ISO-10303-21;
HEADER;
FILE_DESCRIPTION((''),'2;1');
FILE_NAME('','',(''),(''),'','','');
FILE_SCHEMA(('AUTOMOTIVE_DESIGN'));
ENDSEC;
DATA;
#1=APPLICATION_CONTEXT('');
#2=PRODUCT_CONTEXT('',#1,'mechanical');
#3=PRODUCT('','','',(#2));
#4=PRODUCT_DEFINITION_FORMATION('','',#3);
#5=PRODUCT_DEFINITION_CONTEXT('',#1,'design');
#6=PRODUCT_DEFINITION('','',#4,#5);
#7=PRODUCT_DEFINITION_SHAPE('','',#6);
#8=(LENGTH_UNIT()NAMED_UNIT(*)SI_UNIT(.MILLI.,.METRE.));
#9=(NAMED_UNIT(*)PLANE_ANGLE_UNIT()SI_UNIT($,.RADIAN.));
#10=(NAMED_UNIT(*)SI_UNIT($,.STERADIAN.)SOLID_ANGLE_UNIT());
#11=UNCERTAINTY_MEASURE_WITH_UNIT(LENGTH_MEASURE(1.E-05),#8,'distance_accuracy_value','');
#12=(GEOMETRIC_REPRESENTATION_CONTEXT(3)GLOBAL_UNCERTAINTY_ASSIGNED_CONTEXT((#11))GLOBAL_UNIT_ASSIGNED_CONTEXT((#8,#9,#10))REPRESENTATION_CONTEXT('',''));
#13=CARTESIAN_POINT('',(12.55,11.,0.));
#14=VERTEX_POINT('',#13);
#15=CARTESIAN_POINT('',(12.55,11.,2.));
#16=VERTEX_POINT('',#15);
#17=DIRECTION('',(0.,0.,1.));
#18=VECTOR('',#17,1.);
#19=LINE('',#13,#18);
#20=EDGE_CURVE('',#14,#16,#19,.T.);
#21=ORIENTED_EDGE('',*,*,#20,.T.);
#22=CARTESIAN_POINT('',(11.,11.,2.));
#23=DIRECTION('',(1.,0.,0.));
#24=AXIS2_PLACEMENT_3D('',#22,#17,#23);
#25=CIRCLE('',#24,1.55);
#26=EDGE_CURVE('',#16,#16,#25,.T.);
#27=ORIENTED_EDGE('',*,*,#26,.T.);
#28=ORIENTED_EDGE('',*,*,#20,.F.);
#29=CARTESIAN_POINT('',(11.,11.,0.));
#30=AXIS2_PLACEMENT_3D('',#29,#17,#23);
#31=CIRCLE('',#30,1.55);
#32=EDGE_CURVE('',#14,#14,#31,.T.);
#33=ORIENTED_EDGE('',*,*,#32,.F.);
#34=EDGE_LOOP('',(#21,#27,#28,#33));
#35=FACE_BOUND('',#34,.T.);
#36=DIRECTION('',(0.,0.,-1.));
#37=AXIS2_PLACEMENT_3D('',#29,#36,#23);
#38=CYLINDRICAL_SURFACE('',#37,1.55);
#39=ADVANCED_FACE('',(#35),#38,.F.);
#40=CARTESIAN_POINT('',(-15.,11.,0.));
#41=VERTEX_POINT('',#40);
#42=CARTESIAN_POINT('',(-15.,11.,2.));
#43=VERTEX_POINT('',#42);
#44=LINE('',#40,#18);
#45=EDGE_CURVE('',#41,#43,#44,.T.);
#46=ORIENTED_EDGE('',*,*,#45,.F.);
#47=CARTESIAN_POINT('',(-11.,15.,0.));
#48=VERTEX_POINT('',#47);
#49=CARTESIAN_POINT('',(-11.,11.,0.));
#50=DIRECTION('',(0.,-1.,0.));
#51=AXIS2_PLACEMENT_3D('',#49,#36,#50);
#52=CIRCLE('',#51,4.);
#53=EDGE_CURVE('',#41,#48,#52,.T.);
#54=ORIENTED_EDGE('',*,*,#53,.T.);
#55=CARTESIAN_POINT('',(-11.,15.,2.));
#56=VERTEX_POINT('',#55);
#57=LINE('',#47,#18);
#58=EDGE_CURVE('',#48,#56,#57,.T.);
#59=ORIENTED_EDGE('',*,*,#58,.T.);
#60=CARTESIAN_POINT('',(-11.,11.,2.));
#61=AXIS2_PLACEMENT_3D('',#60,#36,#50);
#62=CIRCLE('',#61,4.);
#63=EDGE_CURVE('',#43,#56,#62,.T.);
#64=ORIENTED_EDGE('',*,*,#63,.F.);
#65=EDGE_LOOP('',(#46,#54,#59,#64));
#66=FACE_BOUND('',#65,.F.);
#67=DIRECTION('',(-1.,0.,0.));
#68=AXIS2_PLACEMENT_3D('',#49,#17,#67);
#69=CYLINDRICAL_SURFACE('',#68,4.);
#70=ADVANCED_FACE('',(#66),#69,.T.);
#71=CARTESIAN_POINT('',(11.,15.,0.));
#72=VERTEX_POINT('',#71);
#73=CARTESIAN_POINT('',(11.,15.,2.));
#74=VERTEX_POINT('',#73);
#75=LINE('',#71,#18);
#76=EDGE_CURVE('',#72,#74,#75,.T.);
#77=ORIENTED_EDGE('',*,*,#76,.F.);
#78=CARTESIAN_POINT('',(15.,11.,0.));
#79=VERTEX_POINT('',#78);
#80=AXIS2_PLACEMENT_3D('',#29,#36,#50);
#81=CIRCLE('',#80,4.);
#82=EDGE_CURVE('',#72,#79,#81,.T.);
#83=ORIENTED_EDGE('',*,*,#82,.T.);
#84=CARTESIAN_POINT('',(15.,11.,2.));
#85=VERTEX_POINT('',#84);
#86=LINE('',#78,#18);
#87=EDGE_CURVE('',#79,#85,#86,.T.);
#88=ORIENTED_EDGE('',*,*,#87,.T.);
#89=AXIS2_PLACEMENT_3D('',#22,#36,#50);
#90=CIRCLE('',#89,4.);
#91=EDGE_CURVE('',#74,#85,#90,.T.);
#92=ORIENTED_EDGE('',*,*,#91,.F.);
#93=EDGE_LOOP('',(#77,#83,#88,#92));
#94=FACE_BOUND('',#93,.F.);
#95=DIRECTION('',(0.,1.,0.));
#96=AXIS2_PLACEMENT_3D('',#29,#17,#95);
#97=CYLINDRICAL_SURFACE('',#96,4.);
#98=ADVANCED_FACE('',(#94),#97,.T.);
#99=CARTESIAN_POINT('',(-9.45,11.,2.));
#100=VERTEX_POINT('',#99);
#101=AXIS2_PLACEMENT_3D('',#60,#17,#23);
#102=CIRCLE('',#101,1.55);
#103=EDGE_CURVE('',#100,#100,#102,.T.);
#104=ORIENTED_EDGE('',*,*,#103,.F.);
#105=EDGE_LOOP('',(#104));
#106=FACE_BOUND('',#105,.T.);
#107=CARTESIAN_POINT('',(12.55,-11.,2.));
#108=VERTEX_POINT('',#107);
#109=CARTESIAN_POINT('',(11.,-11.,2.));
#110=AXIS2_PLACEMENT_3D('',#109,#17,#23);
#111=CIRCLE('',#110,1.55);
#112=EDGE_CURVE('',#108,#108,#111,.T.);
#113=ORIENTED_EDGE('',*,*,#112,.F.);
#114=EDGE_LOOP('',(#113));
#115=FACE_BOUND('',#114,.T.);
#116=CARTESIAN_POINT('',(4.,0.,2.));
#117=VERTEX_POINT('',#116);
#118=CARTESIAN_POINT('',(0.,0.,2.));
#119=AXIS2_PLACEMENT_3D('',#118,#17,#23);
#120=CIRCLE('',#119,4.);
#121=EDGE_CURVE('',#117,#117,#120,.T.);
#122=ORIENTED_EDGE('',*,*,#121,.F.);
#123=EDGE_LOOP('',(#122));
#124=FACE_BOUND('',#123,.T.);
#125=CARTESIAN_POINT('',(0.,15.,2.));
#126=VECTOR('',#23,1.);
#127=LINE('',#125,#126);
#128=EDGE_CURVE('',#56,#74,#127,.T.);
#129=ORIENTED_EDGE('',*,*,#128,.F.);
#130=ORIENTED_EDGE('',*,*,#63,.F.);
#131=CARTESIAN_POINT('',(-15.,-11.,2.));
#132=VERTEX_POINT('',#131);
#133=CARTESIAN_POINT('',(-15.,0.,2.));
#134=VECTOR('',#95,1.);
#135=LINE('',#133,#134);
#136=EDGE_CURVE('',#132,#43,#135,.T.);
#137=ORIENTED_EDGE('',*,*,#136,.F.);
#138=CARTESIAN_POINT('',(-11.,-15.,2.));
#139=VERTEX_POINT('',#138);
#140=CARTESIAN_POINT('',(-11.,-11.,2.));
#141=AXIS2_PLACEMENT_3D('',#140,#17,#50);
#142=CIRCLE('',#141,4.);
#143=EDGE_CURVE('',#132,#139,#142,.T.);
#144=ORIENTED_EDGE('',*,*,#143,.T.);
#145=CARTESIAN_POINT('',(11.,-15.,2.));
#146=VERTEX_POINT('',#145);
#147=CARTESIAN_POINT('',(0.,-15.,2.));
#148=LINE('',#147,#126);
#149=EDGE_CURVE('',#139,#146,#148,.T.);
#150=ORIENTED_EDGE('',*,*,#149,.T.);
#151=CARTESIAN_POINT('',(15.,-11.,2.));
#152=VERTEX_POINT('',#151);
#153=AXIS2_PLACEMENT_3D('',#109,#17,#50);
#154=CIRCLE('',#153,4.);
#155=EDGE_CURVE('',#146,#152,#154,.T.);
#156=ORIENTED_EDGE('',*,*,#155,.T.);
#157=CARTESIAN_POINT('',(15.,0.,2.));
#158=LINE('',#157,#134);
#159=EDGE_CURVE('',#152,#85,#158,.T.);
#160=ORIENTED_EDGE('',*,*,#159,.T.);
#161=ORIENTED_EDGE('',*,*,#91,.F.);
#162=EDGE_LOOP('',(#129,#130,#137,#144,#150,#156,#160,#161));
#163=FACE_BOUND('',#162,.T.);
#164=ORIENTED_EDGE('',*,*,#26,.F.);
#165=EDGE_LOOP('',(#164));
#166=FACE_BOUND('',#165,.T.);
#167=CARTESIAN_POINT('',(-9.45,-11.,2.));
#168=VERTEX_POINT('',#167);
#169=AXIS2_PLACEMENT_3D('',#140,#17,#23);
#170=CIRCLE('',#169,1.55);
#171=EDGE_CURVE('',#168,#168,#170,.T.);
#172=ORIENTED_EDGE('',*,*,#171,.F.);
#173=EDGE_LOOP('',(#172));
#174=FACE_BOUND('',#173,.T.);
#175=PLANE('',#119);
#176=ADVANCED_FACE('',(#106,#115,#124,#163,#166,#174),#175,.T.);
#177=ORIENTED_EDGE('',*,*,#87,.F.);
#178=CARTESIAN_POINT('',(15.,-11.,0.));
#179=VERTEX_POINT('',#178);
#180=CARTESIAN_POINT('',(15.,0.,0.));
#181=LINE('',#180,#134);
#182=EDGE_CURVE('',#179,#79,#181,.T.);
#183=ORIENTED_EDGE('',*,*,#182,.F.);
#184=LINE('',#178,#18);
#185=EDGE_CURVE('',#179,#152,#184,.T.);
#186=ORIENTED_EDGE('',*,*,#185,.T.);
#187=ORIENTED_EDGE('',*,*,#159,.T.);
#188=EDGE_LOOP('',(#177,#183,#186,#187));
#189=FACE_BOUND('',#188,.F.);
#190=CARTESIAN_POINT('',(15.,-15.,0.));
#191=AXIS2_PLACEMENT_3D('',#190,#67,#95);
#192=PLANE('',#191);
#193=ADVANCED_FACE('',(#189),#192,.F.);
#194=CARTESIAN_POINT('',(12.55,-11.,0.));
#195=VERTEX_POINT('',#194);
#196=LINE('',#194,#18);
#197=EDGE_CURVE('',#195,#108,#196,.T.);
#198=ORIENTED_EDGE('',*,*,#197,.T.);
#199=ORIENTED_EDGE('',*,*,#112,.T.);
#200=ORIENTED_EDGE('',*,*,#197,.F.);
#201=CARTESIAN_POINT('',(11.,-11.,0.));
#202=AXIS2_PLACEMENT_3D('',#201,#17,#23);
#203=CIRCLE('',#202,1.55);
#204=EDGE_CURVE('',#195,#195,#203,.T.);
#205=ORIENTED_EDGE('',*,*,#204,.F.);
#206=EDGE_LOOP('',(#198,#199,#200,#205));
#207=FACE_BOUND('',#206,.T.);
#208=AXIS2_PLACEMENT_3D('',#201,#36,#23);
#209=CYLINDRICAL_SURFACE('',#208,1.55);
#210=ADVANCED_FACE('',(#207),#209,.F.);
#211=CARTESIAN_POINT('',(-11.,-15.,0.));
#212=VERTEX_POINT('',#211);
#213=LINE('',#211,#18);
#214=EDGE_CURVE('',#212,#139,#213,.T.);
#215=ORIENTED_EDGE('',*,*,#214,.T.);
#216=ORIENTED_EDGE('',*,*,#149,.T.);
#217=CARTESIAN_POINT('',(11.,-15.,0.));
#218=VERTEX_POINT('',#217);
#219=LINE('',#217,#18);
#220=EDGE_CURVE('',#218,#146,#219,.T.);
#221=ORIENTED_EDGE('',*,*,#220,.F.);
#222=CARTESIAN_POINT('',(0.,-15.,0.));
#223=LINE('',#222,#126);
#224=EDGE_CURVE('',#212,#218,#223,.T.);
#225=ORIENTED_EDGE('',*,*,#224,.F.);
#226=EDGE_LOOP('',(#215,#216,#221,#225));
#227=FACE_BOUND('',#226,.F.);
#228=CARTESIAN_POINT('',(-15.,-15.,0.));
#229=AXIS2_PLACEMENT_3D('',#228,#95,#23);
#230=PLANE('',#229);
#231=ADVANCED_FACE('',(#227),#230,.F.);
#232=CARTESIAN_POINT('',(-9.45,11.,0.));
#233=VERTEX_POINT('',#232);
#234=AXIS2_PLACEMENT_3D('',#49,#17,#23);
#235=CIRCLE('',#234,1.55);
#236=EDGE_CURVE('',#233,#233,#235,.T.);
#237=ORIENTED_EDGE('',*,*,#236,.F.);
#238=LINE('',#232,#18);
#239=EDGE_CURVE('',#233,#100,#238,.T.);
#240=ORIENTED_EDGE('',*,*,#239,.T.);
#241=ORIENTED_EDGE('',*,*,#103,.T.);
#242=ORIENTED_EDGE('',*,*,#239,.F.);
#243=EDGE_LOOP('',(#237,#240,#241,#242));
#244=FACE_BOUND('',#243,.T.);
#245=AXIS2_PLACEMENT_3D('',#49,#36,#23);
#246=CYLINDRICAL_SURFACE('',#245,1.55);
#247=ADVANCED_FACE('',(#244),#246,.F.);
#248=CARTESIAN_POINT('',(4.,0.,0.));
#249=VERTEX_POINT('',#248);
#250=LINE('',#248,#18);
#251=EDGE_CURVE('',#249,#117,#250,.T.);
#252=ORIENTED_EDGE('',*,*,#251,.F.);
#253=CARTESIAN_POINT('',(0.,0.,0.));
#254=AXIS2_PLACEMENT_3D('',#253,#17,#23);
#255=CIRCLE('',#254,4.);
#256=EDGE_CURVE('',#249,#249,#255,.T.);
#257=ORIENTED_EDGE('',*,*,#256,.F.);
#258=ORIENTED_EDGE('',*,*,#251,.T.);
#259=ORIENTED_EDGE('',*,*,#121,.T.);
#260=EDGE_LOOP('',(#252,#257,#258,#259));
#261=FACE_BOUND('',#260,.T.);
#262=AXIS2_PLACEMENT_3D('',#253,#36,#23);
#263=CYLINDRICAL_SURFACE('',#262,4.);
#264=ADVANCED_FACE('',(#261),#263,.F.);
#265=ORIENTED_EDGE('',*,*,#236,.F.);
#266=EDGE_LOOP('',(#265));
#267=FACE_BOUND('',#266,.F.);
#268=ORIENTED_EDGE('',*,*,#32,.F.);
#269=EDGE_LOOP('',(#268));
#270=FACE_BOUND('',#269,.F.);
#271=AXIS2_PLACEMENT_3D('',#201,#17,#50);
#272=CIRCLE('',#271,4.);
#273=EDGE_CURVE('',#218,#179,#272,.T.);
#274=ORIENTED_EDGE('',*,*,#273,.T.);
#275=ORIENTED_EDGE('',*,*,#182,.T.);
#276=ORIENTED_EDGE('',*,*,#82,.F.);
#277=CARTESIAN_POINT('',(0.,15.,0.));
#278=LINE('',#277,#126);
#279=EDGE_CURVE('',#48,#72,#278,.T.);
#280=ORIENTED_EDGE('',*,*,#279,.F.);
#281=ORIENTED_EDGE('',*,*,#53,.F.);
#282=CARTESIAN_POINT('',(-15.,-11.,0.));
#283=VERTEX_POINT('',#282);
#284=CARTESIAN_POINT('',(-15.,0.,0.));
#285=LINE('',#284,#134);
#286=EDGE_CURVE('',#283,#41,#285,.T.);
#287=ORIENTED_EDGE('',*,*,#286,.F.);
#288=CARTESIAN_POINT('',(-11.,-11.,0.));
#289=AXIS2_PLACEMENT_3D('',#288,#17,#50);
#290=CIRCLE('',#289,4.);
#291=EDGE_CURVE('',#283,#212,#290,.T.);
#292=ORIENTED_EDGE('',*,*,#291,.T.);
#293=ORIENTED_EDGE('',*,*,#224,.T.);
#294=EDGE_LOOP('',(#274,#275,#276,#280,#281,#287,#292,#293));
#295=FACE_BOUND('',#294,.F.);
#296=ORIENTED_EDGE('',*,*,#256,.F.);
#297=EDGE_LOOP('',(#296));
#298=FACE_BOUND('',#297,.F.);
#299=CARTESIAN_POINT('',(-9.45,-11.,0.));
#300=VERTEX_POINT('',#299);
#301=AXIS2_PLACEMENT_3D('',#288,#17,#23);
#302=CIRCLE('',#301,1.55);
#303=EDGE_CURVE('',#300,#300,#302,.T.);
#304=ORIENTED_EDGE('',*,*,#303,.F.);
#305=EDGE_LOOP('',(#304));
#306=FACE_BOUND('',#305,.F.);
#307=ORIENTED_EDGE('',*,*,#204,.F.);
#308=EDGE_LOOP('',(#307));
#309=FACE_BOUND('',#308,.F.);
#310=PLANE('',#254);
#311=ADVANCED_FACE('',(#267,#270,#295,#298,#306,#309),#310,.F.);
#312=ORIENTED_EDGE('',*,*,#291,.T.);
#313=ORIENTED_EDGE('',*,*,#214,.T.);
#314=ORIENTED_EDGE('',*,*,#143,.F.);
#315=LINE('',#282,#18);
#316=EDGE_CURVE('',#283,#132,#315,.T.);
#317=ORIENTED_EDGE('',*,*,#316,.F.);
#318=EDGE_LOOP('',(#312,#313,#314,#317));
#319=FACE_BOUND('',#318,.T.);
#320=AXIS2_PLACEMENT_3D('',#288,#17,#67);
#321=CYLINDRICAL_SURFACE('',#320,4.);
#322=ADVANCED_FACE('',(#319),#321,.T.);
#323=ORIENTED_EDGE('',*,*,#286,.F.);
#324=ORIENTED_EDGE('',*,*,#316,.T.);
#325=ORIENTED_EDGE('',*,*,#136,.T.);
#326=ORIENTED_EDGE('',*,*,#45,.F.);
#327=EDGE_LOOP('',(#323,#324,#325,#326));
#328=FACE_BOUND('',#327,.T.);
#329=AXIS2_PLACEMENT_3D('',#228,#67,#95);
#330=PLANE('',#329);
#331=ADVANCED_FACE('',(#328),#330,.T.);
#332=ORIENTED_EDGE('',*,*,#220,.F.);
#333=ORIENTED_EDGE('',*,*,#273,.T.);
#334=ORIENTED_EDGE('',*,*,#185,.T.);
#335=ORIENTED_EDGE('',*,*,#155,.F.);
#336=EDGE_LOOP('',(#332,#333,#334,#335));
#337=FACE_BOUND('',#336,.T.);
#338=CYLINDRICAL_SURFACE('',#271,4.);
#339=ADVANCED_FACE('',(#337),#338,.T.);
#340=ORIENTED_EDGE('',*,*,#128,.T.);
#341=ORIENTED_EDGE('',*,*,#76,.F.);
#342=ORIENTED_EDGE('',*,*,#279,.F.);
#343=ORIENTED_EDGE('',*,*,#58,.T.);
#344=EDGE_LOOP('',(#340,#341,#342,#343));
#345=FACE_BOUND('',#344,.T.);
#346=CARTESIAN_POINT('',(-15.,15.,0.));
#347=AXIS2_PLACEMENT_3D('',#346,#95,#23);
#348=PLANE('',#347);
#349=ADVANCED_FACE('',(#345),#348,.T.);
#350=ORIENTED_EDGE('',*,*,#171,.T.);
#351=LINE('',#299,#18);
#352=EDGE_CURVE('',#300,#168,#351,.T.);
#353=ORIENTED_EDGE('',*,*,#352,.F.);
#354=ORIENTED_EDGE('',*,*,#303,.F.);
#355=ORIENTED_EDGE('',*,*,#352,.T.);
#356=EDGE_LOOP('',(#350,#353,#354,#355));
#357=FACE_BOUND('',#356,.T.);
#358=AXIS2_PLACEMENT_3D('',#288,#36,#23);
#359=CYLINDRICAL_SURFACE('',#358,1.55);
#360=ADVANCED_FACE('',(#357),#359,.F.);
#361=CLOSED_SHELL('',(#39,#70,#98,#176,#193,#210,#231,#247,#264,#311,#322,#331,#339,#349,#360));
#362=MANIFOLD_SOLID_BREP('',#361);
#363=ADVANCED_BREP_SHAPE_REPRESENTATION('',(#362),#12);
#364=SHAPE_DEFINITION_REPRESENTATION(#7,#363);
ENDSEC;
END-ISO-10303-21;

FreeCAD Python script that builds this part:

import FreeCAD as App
import Part
import Sketcher
Q = App.Units.Quantity


def edges_at(feature, points):
    """Names of the edges that pass closest to the given points."""
    edges = feature.Shape.Edges
    near = lambda p: min(range(len(edges)), key=lambda i: edges[i].distToShape(Part.Vertex(*p))[0])
    return sorted({f"Edge{near(p) + 1}" for p in points})

doc = App.newDocument("Part")
params = doc.addObject("Spreadsheet::Sheet", "Params")
for row, (alias, value) in enumerate([
    ("sketch1_diameter", "8 mm"),
    ("sketch1_diameter2", "3.1 mm"),
    ("sketch1_width", "30 mm"),
    ("pad1_length", "2 mm"),
    ("fillet_radius", "4 mm"),
], start=1):
    params.set(f"A{row}", alias)
    params.set(f"B{row}", "=" + value)
    params.setAlias(f"B{row}", alias)

body = doc.addObject("PartDesign::Body", "Body")

# Sketch on XY plane
sketch1 = doc.addObject("Sketcher::SketchObject", "Sketch")
body.addObject(sketch1)
sketch1.AttachmentSupport = (doc.XY_Plane, [""])
sketch1.MapMode = "FlatFace"
sketch1.addGeometry([
    Part.LineSegment(App.Vector(-15, 15, 0), App.Vector(-15, -15, 0)),  # 0
    Part.LineSegment(App.Vector(-15, -15, 0), App.Vector(15, -15, 0)),  # 1
    Part.LineSegment(App.Vector(15, -15, 0), App.Vector(15, 15, 0)),  # 2
    Part.LineSegment(App.Vector(15, 15, 0), App.Vector(-15, 15, 0)),  # 3
    Part.Circle(App.Vector(-11, -11, 0), App.Vector(0, 0, 1), 1.6),  # 4
    Part.Circle(App.Vector(11, -11, 0), App.Vector(0, 0, 1), 1.6),  # 5
    Part.Circle(App.Vector(-11, 11, 0), App.Vector(0, 0, 1), 1.6),  # 6
    Part.Circle(App.Vector(0, 0, 0), App.Vector(0, 0, 1), 4),  # 7
    Part.Circle(App.Vector(11, 11, 0), App.Vector(0, 0, 1), 1.6),  # 8
], False)
sketch1.addConstraint([
    Sketcher.Constraint("Coincident", 0, 2, 1, 1),
    Sketcher.Constraint("Coincident", 1, 2, 2, 1),
    Sketcher.Constraint("Coincident", 2, 2, 3, 1),
    Sketcher.Constraint("Coincident", 3, 2, 0, 1),
    Sketcher.Constraint("Vertical", 0),
    Sketcher.Constraint("Horizontal", 1),
    Sketcher.Constraint("Vertical", 2),
    Sketcher.Constraint("Horizontal", 3),
    Sketcher.Constraint("Coincident", 7, 3, -1, 1),
    Sketcher.Constraint("Equal", 4, 5),
    Sketcher.Constraint("Equal", 5, 6),
    Sketcher.Constraint("Equal", 6, 8),
    Sketcher.Constraint("Symmetric", 5, 3, 6, 3, -1, 1),
    Sketcher.Constraint("Symmetric", 4, 3, 8, 3, -1, 1),
    Sketcher.Constraint("Symmetric", 0, 2, 2, 2, -1, 1),
    Sketcher.Constraint("Symmetric", 4, 3, 5, 3, -2),
    Sketcher.Constraint("Equal", 3, 0),
    Sketcher.Constraint("Diameter", 7, Q("8 mm")),
    Sketcher.Constraint("Diameter", 4, Q("3.1 mm")),
    Sketcher.Constraint("DistanceX", 1, 1, 1, 2, Q("30 mm")),
    Sketcher.Constraint("DistanceX", 4, 3, -1, 1, Q("11 mm")),
    Sketcher.Constraint("DistanceY", 4, 3, -1, 1, Q("11 mm")),
])
sketch1.setExpression("Constraints[17]", "Params.sketch1_diameter")
sketch1.setExpression("Constraints[18]", "Params.sketch1_diameter2")
sketch1.setExpression("Constraints[19]", "Params.sketch1_width")
pad1 = doc.addObject("PartDesign::Pad", "Pad")
body.addObject(pad1)
pad1.Profile = sketch1
pad1.setExpression("Length", "Params.pad1_length")
doc.recompute()

fillet = doc.addObject("PartDesign::Fillet", "Fillet")
body.addObject(fillet)
fillet.Base = (pad1, edges_at(pad1, [
    (-15, -15, 1),
    (15, -15, 1),
    (15, 15, 1),
    (-15, 15, 1),
]))
fillet.setExpression("Radius", "Params.fillet_radius")

doc.recompute()
